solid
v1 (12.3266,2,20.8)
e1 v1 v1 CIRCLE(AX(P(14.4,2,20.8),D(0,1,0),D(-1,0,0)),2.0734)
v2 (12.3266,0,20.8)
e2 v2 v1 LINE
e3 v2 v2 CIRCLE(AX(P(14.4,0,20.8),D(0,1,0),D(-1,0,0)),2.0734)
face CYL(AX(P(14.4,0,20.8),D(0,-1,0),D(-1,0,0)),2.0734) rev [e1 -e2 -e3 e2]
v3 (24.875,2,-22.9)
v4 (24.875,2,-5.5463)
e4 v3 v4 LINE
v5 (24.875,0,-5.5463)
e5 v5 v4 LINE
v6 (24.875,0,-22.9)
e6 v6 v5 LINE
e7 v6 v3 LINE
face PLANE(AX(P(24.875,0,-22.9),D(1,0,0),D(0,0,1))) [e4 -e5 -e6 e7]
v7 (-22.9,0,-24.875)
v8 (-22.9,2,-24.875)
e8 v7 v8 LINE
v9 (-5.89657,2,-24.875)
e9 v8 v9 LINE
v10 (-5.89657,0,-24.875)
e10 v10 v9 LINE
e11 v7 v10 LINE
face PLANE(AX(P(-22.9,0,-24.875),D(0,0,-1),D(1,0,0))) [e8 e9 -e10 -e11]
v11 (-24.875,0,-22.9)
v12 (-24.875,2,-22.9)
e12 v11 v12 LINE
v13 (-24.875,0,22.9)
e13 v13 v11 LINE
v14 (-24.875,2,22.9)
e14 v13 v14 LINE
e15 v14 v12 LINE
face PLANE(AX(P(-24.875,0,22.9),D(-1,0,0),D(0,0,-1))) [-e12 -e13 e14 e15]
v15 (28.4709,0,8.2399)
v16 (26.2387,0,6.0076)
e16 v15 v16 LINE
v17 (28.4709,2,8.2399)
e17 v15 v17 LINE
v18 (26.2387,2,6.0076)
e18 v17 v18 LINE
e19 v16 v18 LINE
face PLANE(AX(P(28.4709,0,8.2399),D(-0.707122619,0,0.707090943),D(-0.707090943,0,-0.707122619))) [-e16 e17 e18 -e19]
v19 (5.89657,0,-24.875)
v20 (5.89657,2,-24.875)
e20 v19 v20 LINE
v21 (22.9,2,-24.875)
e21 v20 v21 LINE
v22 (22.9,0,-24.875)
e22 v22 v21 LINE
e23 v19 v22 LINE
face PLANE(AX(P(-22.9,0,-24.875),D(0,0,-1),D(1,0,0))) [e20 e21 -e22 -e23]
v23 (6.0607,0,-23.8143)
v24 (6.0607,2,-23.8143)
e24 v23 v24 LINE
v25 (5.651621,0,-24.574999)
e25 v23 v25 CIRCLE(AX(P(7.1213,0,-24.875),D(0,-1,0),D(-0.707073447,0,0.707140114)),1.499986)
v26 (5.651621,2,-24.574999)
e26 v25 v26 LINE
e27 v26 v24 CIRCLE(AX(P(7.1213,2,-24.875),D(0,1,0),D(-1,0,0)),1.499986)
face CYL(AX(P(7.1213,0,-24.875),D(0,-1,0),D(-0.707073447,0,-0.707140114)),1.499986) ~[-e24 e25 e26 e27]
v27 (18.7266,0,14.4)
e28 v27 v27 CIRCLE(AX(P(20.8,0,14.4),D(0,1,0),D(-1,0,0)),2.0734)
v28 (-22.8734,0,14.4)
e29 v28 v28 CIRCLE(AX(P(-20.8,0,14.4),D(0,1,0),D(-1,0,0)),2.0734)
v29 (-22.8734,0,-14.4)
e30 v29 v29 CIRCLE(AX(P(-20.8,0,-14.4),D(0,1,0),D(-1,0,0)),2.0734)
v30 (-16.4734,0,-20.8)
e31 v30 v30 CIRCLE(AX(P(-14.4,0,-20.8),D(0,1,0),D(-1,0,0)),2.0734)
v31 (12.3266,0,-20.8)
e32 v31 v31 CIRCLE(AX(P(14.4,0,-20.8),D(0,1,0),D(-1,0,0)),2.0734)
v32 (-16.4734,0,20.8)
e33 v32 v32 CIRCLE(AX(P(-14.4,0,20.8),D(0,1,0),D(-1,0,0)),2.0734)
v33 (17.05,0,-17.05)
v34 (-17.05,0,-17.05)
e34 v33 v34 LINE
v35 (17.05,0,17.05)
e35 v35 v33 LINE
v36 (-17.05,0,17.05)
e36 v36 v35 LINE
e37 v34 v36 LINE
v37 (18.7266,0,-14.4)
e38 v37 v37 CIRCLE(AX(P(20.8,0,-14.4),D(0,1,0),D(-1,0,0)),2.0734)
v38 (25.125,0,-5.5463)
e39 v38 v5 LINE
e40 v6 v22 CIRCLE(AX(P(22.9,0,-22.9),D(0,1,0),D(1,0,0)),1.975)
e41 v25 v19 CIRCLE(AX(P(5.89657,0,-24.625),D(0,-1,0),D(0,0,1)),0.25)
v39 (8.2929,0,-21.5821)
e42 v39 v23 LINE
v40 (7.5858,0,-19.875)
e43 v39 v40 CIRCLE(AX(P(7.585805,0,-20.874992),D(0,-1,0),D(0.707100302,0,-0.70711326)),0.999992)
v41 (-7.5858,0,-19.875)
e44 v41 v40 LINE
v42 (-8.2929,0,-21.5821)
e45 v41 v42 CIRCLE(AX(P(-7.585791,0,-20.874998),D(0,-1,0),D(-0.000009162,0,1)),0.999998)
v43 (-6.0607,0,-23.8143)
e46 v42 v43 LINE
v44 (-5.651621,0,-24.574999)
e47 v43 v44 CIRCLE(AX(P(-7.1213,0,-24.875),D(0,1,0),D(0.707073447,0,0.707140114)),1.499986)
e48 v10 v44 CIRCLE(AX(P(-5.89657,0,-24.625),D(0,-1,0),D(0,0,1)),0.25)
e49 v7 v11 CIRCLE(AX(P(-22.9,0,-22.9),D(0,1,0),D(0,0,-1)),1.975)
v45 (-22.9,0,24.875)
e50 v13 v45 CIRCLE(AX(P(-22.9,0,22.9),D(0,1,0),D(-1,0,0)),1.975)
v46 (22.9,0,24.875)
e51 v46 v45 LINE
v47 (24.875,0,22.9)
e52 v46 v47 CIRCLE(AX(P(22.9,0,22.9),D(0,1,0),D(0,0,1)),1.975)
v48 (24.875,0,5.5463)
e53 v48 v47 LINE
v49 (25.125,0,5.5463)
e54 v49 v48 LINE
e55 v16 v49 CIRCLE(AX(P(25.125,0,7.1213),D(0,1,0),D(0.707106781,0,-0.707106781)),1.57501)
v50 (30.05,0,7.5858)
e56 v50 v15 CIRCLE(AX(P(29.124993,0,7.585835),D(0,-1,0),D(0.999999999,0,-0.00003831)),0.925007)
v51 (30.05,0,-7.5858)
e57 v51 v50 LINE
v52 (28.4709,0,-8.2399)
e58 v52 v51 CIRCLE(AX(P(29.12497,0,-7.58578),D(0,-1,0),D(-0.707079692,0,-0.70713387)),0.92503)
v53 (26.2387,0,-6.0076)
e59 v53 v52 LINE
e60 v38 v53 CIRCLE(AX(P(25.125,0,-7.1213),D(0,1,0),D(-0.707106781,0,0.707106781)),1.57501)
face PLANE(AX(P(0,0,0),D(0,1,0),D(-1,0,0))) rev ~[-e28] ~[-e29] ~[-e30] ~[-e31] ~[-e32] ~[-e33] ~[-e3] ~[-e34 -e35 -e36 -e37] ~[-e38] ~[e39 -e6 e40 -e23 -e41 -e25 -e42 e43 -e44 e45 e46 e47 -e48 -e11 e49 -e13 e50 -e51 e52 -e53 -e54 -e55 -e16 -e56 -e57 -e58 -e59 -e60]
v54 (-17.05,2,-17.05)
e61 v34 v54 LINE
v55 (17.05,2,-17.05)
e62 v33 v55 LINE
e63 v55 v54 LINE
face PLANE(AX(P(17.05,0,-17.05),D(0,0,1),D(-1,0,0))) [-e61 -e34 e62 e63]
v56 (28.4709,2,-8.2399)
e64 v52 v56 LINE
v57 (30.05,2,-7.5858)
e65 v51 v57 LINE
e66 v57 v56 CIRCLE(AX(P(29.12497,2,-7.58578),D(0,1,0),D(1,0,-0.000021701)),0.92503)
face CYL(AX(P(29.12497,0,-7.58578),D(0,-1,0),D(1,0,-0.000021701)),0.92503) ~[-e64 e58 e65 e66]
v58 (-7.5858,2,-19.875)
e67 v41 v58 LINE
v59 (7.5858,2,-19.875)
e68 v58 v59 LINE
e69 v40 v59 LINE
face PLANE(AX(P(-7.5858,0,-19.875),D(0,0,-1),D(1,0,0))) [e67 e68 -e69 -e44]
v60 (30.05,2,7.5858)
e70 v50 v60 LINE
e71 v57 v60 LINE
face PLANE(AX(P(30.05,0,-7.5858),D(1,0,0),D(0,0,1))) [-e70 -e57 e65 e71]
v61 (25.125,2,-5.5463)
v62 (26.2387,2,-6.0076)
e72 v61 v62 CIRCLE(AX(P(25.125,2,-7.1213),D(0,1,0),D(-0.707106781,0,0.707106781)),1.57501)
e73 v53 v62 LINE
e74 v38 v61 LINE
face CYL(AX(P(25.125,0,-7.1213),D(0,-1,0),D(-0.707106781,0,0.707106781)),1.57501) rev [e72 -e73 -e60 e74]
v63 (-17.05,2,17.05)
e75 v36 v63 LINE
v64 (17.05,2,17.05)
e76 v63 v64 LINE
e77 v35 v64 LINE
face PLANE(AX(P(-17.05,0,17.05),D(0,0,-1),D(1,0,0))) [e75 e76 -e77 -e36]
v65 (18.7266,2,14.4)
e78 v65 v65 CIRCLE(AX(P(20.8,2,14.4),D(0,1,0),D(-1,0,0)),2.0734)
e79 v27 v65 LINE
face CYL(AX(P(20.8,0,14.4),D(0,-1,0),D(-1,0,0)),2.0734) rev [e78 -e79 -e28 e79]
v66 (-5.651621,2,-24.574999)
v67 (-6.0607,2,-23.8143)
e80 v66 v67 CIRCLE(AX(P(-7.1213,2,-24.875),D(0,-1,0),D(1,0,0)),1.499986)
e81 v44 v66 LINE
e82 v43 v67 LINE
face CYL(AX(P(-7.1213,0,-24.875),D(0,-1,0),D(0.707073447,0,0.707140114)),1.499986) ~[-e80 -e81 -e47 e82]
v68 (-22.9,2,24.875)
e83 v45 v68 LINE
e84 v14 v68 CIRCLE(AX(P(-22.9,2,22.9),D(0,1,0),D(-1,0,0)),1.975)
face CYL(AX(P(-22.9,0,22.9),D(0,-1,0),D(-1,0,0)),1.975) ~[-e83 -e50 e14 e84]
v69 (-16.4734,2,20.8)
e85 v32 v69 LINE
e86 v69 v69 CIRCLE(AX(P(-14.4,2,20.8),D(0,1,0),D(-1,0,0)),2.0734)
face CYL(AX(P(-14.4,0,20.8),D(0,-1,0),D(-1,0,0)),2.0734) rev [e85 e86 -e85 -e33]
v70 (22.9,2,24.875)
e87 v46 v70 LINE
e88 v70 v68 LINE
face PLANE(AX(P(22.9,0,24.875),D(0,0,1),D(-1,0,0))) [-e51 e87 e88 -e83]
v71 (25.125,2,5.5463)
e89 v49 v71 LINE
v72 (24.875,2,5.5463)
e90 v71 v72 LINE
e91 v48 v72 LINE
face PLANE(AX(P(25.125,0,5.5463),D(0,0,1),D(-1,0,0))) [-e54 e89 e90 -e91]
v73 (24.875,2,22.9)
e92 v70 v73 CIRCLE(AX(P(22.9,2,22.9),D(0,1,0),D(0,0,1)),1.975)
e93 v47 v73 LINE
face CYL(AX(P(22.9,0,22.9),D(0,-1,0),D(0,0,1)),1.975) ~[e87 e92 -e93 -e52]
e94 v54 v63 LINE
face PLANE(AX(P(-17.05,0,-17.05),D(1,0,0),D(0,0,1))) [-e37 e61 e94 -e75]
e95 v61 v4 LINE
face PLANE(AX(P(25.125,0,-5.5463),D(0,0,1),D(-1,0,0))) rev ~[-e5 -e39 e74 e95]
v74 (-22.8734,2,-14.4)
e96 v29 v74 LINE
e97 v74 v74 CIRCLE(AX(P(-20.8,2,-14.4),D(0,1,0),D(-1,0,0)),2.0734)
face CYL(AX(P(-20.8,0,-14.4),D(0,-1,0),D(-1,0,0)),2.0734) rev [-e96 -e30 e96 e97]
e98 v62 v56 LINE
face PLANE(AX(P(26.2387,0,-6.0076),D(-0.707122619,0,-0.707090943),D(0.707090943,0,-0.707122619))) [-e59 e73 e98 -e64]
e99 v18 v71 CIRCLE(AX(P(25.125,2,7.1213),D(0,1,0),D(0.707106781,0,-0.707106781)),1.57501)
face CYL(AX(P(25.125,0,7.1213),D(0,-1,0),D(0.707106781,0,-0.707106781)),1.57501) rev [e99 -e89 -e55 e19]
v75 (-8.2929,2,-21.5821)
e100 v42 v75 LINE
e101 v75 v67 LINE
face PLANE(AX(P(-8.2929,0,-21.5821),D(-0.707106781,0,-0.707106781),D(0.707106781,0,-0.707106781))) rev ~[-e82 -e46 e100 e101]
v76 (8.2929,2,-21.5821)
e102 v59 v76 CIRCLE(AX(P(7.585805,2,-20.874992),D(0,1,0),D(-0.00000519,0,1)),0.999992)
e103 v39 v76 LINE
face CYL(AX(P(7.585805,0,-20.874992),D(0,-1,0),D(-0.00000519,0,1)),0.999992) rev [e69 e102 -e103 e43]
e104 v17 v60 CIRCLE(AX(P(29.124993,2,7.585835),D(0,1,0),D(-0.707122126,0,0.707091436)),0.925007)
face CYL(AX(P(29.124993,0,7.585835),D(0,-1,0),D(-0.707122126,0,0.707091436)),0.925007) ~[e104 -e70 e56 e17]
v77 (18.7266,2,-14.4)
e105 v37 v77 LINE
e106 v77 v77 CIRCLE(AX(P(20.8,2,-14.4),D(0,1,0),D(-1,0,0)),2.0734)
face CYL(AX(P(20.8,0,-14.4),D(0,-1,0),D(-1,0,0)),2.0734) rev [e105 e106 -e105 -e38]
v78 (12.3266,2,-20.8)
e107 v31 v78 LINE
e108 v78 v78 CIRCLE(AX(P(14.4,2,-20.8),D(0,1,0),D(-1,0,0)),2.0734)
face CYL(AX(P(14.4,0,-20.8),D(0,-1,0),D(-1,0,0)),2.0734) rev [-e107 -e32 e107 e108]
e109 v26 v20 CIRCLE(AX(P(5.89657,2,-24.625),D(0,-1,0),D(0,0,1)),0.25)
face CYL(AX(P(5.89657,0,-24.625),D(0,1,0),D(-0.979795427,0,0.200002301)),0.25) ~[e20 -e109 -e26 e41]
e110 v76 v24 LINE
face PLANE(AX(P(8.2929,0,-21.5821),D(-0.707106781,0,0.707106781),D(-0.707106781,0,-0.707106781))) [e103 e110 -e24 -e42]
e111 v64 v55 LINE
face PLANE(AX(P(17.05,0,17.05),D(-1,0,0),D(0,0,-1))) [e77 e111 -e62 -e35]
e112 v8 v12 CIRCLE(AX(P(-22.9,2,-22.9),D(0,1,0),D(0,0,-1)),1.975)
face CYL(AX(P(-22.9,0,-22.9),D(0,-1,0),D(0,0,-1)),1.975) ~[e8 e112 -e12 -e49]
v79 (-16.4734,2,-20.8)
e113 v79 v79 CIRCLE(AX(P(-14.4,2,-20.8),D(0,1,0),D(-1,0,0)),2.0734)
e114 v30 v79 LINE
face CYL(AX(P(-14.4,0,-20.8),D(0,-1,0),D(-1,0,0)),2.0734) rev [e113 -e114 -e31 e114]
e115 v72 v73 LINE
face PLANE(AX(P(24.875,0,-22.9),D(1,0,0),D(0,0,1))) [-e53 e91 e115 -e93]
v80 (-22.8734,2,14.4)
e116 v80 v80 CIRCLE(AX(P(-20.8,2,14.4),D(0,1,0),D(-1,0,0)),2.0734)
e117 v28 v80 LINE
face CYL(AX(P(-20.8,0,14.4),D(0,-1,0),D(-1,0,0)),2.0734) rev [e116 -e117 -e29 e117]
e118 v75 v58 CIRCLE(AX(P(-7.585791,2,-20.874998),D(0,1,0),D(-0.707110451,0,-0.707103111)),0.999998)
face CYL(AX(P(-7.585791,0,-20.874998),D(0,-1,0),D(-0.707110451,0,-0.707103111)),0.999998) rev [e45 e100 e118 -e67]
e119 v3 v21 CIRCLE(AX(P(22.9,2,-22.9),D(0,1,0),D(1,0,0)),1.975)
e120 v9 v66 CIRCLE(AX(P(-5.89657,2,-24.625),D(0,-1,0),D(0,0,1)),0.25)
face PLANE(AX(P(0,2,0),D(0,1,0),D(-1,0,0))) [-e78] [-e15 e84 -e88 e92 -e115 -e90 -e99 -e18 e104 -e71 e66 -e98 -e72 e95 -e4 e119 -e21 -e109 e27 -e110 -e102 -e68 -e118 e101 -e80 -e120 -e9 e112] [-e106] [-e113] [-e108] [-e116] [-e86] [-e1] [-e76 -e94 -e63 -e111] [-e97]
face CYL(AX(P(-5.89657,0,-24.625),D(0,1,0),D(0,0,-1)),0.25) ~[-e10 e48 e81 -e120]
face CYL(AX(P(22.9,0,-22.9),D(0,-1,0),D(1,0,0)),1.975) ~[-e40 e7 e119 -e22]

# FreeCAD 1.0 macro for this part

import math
import FreeCAD as App
import Part
import Sketcher
Q = App.Units.Quantity


def edges_at(feature, points):
    """Names of the edges that pass closest to the given points."""
    edges = feature.Shape.Edges
    near = lambda p: min(range(len(edges)), key=lambda i: edges[i].distToShape(Part.Vertex(*p))[0])
    return sorted({f"Edge{near(p) + 1}" for p in points})

doc = App.newDocument("Part")
body = doc.addObject("PartDesign::Body", "Body")

sketch1 = body.newObject("Sketcher::SketchObject", "Sketch")
sketch1.AttachmentSupport = (doc.getObject("XZ_Plane"), [""])
sketch1.MapMode = "FlatFace"
sketch1.addGeometry([
    Part.LineSegment(App.Vector(-22.9, 24.9, 0), App.Vector(22.9, 24.9, 0)),
    Part.ArcOfCircle(Part.Circle(App.Vector(22.9, 22.9, 0), App.Vector(0, 0, 1), 2), math.radians(0), math.radians(90)),
    Part.LineSegment(App.Vector(24.9, 22.9, 0), App.Vector(24.9, -22.9, 0)),
    Part.ArcOfCircle(Part.Circle(App.Vector(22.9, -22.9, 0), App.Vector(0, 0, 1), 2), math.radians(-90), math.radians(0)),
    Part.LineSegment(App.Vector(22.9, -24.9, 0), App.Vector(-22.9, -24.9, 0)),
    Part.ArcOfCircle(Part.Circle(App.Vector(-22.9, -22.9, 0), App.Vector(0, 0, 1), 2), math.radians(180), math.radians(270)),
    Part.LineSegment(App.Vector(-24.9, -22.9, 0), App.Vector(-24.9, 22.9, 0)),
    Part.ArcOfCircle(Part.Circle(App.Vector(-22.9, 22.9, 0), App.Vector(0, 0, 1), 2), math.radians(90), math.radians(180)),
    Part.Circle(App.Vector(14.4, -20.8, 0), App.Vector(0, 0, 1), 2.1),
    Part.Circle(App.Vector(20.8, -14.4, 0), App.Vector(0, 0, 1), 2.1),
    Part.LineSegment(App.Vector(17.1, -17.1, 0), App.Vector(17.1, 17.1, 0)),
    Part.LineSegment(App.Vector(17.1, 17.1, 0), App.Vector(-17.1, 17.1, 0)),
    Part.LineSegment(App.Vector(-17.1, 17.1, 0), App.Vector(-17.1, -17.1, 0)),
    Part.LineSegment(App.Vector(-17.1, -17.1, 0), App.Vector(17.1, -17.1, 0)),
    Part.Circle(App.Vector(-14.4, -20.8, 0), App.Vector(0, 0, 1), 2.1),
    Part.Circle(App.Vector(-20.8, -14.4, 0), App.Vector(0, 0, 1), 2.1),
    Part.Circle(App.Vector(20.8, 14.4, 0), App.Vector(0, 0, 1), 2.1),
    Part.Circle(App.Vector(14.4, 20.8, 0), App.Vector(0, 0, 1), 2.1),
    Part.Circle(App.Vector(-20.8, 14.4, 0), App.Vector(0, 0, 1), 2.1),
    Part.Circle(App.Vector(-14.4, 20.8, 0), App.Vector(0, 0, 1), 2.1),
], False)
sketch1.addConstraint([
    Sketcher.Constraint("Tangent", 0, 2, 1, 2),
    Sketcher.Constraint("Tangent", 1, 1, 2, 1),
    Sketcher.Constraint("Tangent", 2, 2, 3, 2),
    Sketcher.Constraint("Tangent", 3, 1, 4, 1),
    Sketcher.Constraint("Tangent", 4, 2, 5, 2),
    Sketcher.Constraint("Tangent", 5, 1, 6, 1),
    Sketcher.Constraint("Tangent", 6, 2, 7, 2),
    Sketcher.Constraint("Tangent", 7, 1, 0, 1),
    Sketcher.Constraint("Coincident", 10, 2, 11, 1),
    Sketcher.Constraint("Coincident", 11, 2, 12, 1),
    Sketcher.Constraint("Coincident", 12, 2, 13, 1),
    Sketcher.Constraint("Coincident", 13, 2, 10, 1),
    Sketcher.Constraint("Horizontal", 0),
    Sketcher.Constraint("Vertical", 2),
    Sketcher.Constraint("Horizontal", 4),
    Sketcher.Constraint("Vertical", 6),
    Sketcher.Constraint("Vertical", 10),
    Sketcher.Constraint("Horizontal", 11),
    Sketcher.Constraint("Vertical", 12),
    Sketcher.Constraint("Horizontal", 13),
    Sketcher.Constraint("Equal", 1, 3),
    Sketcher.Constraint("Equal", 3, 5),
    Sketcher.Constraint("Equal", 5, 7),
    Sketcher.Constraint("Equal", 8, 9),
    Sketcher.Constraint("Equal", 9, 14),
    Sketcher.Constraint("Equal", 14, 15),
    Sketcher.Constraint("Equal", 15, 16),
    Sketcher.Constraint("Equal", 16, 17),
    Sketcher.Constraint("Equal", 17, 18),
    Sketcher.Constraint("Equal", 18, 19),
    Sketcher.Constraint("Symmetric", 1, 3, 5, 3, -1, 1),
    Sketcher.Constraint("Symmetric", 15, 3, 16, 3, -1, 1),
    Sketcher.Constraint("Symmetric", 14, 3, 17, 3, -1, 1),
    Sketcher.Constraint("Symmetric", 9, 3, 18, 3, -1, 1),
    Sketcher.Constraint("Symmetric", 8, 3, 19, 3, -1, 1),
    Sketcher.Constraint("Symmetric", 10, 2, 12, 2, -1, 1),
    Sketcher.Constraint("Symmetric", 8, 3, 14, 3, -2),
    Sketcher.Constraint("Symmetric", 9, 3, 15, 3, -2),
    Sketcher.Constraint("Equal", 4, 2),
    Sketcher.Constraint("Equal", 13, 10),
    Sketcher.Constraint("DistanceX", 0, 1, 0, 2, Q("45.8 mm")),
    Sketcher.Constraint("DistanceX", 11, 2, 11, 1, Q("34.1 mm")),
    Sketcher.Constraint("Radius", 1, Q("1.975 mm")),
    Sketcher.Constraint("Diameter", 8, Q("4.1468 mm")),
    Sketcher.Constraint("DistanceX", -1, 1, 8, 3, Q("14.4 mm")),
    Sketcher.Constraint("DistanceY", 8, 3, -1, 1, Q("20.8 mm")),
    Sketcher.Constraint("DistanceX", -1, 1, 9, 3, Q("20.8 mm")),
    Sketcher.Constraint("DistanceY", 9, 3, -1, 1, Q("14.4 mm")),
])
pad1 = body.newObject("PartDesign::Pad", "Pad")
pad1.Profile = sketch1
pad1.Length = 2
pad1.Reversed = True

sketch2 = body.newObject("Sketcher::SketchObject", "Sketch001")
sketch2.AttachmentSupport = (doc.getObject("XZ_Plane"), [""])
sketch2.MapMode = "FlatFace"
sketch2.addGeometry([
    Part.LineSegment(App.Vector(25.12, -5.55, 0), App.Vector(24.88, -5.55, 0)),
    Part.LineSegment(App.Vector(24.88, -5.55, 0), App.Vector(24.88, 5.55, 0)),
    Part.LineSegment(App.Vector(24.88, 5.55, 0), App.Vector(25.12, 5.55, 0)),
    Part.ArcOfCircle(Part.Circle(App.Vector(25.12, 7.12, 0), App.Vector(0, 0, 1), 1.58), math.radians(-90), math.radians(-45)),
    Part.LineSegment(App.Vector(26.24, 6.01, 0), App.Vector(28.47, 8.24, 0)),
    Part.ArcOfCircle(Part.Circle(App.Vector(29.12, 7.59, 0), App.Vector(0, 0, 1), 0.93), math.radians(0), math.radians(135)),
    Part.LineSegment(App.Vector(30.05, 7.59, 0), App.Vector(30.05, -7.59, 0)),
    Part.ArcOfCircle(Part.Circle(App.Vector(29.12, -7.59, 0), App.Vector(0, 0, 1), 0.93), math.radians(-135), math.radians(0)),
    Part.LineSegment(App.Vector(28.47, -8.24, 0), App.Vector(26.24, -6.01, 0)),
    Part.ArcOfCircle(Part.Circle(App.Vector(25.12, -7.12, 0), App.Vector(0, 0, 1), 1.58), math.radians(45), math.radians(90)),
], False)
sketch2.addConstraint([
    Sketcher.Constraint("Coincident", 0, 2, 1, 1),
    Sketcher.Constraint("Coincident", 1, 2, 2, 1),
    Sketcher.Constraint("Tangent", 2, 2, 3, 1),
    Sketcher.Constraint("Tangent", 3, 2, 4, 1),
    Sketcher.Constraint("Tangent", 4, 2, 5, 2),
    Sketcher.Constraint("Tangent", 5, 1, 6, 1),
    Sketcher.Constraint("Tangent", 6, 2, 7, 2),
    Sketcher.Constraint("Tangent", 7, 1, 8, 1),
    Sketcher.Constraint("Tangent", 8, 2, 9, 1),
    Sketcher.Constraint("Tangent", 9, 2, 0, 1),
    Sketcher.Constraint("Horizontal", 0),
    Sketcher.Constraint("Vertical", 1),
    Sketcher.Constraint("Horizontal", 2),
    Sketcher.Constraint("Vertical", 6),
    Sketcher.Constraint("Equal", 5, 7),
    Sketcher.Constraint("Equal", 3, 9),
    Sketcher.Constraint("Symmetric", 3, 3, 9, 3, -1),
    Sketcher.Constraint("Perpendicular", 4, 8),
    Sketcher.Constraint("Vertical", 4, 2, 7, 1),
    Sketcher.Constraint("DistanceX", 0, 2, 0, 1, Q("0.25 mm")),
    Sketcher.Constraint("DistanceY", 6, 2, 6, 1, Q("15.1716 mm")),
    Sketcher.Constraint("Radius", 3, Q("1.575 mm")),
    Sketcher.Constraint("Radius", 5, Q("0.925 mm")),
    Sketcher.Constraint("DistanceX", 3, 3, 5, 3, Q("4 mm")),
    Sketcher.Constraint("DistanceX", -1, 1, 5, 1, Q("30.05 mm")),
])
pad2 = body.newObject("PartDesign::Pad", "Pad001")
pad2.Profile = sketch2
pad2.Length = 2
pad2.Reversed = True

sketch3 = body.newObject("Sketcher::SketchObject", "Sketch002")
sketch3.AttachmentSupport = (doc.getObject("XZ_Plane"), [""])
sketch3.MapMode = "FlatFace"
sketch3.addGeometry([
    Part.LineSegment(App.Vector(5.6, -24.9, 0), App.Vector(-5.6, -24.9, 0)),
    Part.ArcOfCircle(Part.Circle(App.Vector(-7.1, -24.9, 0), App.Vector(0, 0, 1), 1.5), math.radians(0), math.radians(45)),
    Part.LineSegment(App.Vector(-6.1, -23.8, 0), App.Vector(-8.3, -21.6, 0)),
    Part.ArcOfCircle(Part.Circle(App.Vector(-7.6, -20.9, 0), App.Vector(0, 0, 1), 1), math.radians(90), math.radians(225)),
    Part.LineSegment(App.Vector(-7.6, -19.9, 0), App.Vector(7.6, -19.9, 0)),
    Part.ArcOfCircle(Part.Circle(App.Vector(7.6, -20.9, 0), App.Vector(0, 0, 1), 1), math.radians(-45), math.radians(90)),
    Part.LineSegment(App.Vector(8.3, -21.6, 0), App.Vector(6.1, -23.8, 0)),
    Part.ArcOfCircle(Part.Circle(App.Vector(7.1, -24.9, 0), App.Vector(0, 0, 1), 1.5), math.radians(135), math.radians(180)),
], False)
sketch3.addConstraint([
    Sketcher.Constraint("Coincident", 0, 2, 1, 1),
    Sketcher.Constraint("Tangent", 1, 2, 2, 1),
    Sketcher.Constraint("Tangent", 2, 2, 3, 2),
    Sketcher.Constraint("Tangent", 3, 1, 4, 1),
    Sketcher.Constraint("Tangent", 4, 2, 5, 2),
    Sketcher.Constraint("Tangent", 5, 1, 6, 1),
    Sketcher.Constraint("Tangent", 6, 2, 7, 1),
    Sketcher.Constraint("Coincident", 7, 2, 0, 1),
    Sketcher.Constraint("Horizontal", 0),
    Sketcher.Constraint("Horizontal", 4),
    Sketcher.Constraint("Equal", 3, 5),
    Sketcher.Constraint("Equal", 1, 7),
    Sketcher.Constraint("Symmetric", 1, 3, 7, 3, -2),
    Sketcher.Constraint("Perpendicular", 2, 6),
    Sketcher.Constraint("Horizontal", 7, 3, 0, 2),
    Sketcher.Constraint("Horizontal", 2, 2, 5, 1),
    Sketcher.Constraint("Radius", 3, Q("1 mm")),
    Sketcher.Constraint("Radius", 1, Q("1.5 mm")),
    Sketcher.Constraint("DistanceX", 4, 1, 4, 2, Q("15.1716 mm")),
    Sketcher.Constraint("DistanceY", 1, 3, 3, 3, Q("4 mm")),
    Sketcher.Constraint("DistanceY", 1, 3, -1, 1, Q("24.875 mm")),
])
pocket1 = body.newObject("PartDesign::Pocket", "Pocket")
pocket1.Profile = sketch3
pocket1.Length = 2
doc.recompute()

fillet = body.newObject("PartDesign::Fillet", "Fillet")
fillet.Base = (pocket1, edges_at(pocket1, [(5.621, 1, -24.875), (-5.621, 1, -24.875)]))
fillet.Radius = 0.25

doc.recompute()
